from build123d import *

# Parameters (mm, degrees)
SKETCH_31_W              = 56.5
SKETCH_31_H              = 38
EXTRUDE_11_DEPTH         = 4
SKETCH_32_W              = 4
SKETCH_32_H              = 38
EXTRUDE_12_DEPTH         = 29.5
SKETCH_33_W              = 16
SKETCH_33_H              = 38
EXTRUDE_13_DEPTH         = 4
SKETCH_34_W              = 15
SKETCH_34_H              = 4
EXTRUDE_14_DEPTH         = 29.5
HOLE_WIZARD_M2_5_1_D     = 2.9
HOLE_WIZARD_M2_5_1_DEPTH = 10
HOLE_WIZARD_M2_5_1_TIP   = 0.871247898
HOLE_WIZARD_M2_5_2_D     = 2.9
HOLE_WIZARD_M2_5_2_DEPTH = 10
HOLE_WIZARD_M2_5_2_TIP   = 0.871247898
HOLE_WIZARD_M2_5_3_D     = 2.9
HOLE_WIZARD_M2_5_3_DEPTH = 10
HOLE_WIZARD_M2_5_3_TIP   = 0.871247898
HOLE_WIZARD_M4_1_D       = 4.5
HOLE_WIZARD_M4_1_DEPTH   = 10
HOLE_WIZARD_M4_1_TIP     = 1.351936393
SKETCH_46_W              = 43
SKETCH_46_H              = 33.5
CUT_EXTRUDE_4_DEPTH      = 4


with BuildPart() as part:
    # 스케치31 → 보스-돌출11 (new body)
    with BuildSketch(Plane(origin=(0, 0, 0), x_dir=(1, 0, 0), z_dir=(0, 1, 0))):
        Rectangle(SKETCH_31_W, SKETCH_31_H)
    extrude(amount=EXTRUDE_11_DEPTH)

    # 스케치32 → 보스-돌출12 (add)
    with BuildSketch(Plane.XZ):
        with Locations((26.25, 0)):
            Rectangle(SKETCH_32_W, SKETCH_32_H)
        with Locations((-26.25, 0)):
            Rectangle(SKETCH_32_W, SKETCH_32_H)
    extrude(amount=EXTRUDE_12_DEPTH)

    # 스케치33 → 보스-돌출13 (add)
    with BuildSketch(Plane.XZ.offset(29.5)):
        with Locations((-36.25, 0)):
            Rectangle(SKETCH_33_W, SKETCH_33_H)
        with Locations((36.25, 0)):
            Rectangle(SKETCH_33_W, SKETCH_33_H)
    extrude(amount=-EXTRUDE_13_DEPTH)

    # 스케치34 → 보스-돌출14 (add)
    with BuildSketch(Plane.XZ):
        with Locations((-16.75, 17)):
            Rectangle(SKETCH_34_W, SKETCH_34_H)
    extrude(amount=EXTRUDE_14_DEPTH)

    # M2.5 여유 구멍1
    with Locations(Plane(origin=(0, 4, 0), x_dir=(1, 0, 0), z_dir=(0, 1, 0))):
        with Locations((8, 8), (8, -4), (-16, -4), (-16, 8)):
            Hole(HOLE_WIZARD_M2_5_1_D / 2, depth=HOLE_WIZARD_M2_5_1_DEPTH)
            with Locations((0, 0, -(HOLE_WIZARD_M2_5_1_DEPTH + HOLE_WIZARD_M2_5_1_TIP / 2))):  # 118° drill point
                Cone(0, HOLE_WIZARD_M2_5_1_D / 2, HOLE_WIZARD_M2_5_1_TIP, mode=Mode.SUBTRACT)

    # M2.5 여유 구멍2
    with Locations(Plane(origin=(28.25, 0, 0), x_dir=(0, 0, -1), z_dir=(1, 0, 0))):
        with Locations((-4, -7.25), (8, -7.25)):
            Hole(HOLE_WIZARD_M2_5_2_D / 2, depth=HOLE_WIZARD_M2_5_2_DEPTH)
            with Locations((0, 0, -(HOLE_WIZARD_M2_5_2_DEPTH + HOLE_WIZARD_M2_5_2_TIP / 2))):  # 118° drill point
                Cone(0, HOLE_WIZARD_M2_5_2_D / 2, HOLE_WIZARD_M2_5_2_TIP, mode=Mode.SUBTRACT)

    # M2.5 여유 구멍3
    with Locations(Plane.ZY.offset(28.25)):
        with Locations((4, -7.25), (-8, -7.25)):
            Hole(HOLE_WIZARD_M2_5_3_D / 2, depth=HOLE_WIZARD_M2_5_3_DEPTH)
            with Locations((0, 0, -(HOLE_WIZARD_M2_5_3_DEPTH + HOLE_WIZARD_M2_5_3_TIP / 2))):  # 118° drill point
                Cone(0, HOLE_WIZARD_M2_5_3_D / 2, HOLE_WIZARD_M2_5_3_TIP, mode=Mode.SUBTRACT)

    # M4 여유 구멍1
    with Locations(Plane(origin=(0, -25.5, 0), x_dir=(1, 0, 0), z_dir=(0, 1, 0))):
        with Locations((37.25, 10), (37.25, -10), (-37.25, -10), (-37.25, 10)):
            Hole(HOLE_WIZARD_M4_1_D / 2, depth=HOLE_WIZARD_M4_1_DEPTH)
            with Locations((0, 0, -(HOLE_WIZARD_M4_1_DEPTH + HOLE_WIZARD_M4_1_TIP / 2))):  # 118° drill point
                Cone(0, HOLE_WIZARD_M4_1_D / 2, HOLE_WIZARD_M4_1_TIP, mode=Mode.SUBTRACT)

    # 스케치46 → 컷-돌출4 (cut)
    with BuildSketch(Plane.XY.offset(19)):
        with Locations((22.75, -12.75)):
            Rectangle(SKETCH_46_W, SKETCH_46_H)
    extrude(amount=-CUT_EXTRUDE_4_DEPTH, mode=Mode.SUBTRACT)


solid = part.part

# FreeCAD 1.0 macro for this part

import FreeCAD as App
import Part
import Sketcher

doc = App.newDocument("Part")
params = doc.addObject("Spreadsheet::Sheet", "Params")
for row, (alias, value) in enumerate([
    ("sketch1_height", "38 mm"),
    ("sketch1_width", "56.5 mm"),
    ("pad1_length", "4 mm"),
    ("sketch2_width", "4 mm"),
    ("sketch2_height", "38 mm"),
    ("pad2_length", "29.5 mm"),
    ("sketch3_width", "16 mm"),
    ("sketch3_height", "38 mm"),
    ("pad3_length", "4 mm"),
    ("sketch4_width", "15 mm"),
    ("sketch4_height", "4 mm"),
    ("pad4_length", "29.5 mm"),
    ("sketch5_diameter", "2.9 mm"),
    ("hole_diameter", "2.9 mm"),
    ("hole_depth", "10 mm"),
    ("sketch6_diameter", "2.9 mm"),
    ("hole2_diameter", "2.9 mm"),
    ("hole2_depth", "10 mm"),
    ("sketch7_diameter", "2.9 mm"),
    ("hole3_diameter", "2.9 mm"),
    ("hole3_depth", "10 mm"),
    ("sketch8_diameter", "4.5 mm"),
    ("hole4_diameter", "4.5 mm"),
    ("hole4_depth", "10 mm"),
    ("sketch9_width", "43 mm"),
    ("sketch9_height", "33.5 mm"),
    ("pocket1_length", "4 mm"),
], start=1):
    params.set(f"A{row}", alias)
    params.set(f"B{row}", "=" + value)
    params.setAlias(f"B{row}", alias)

body = doc.addObject("PartDesign::Body", "Body")

# Sketch on XZ plane
sketch1 = doc.addObject("Sketcher::SketchObject", "Sketch")
body.addObject(sketch1)
sketch1.AttachmentSupport = (doc.XZ_Plane, [""])
sketch1.MapMode = "FlatFace"
sketch1.addGeometry([
    Part.LineSegment(App.Vector(-28, -19, 0), App.Vector(-28, 19, 0)),
    Part.LineSegment(App.Vector(-28, 19, 0), App.Vector(28, 19, 0)),
    Part.LineSegment(App.Vector(28, 19, 0), App.Vector(28, -19, 0)),
    Part.LineSegment(App.Vector(28, -19, 0), App.Vector(-28, -19, 0)),
], False)
sketch1.addConstraint([
    Sketcher.Constraint("Coincident", 0, 2, 1, 1),
    Sketcher.Constraint("Coincident", 1, 2, 2, 1),
    Sketcher.Constraint("Coincident", 2, 2, 3, 1),
    Sketcher.Constraint("Coincident", 3, 2, 0, 1),
    Sketcher.Constraint("Vertical", 0),
    Sketcher.Constraint("Horizontal", 1),
    Sketcher.Constraint("Vertical", 2),
    Sketcher.Constraint("Horizontal", 3),
    Sketcher.Constraint("Symmetric", 0, 2, 2, 2, -1, 1),
    Sketcher.Constraint("DistanceY", 0, 1, 0, 2, 38.0),
    Sketcher.Constraint("DistanceX", 1, 1, 1, 2, 56.5),
])
sketch1.setExpression("Constraints[9]", "Params.sketch1_height")
sketch1.setExpression("Constraints[10]", "Params.sketch1_width")
pad1 = doc.addObject("PartDesign::Pad", "Pad")
body.addObject(pad1)
pad1.Profile = sketch1
pad1.setExpression("Length", "Params.pad1_length")
pad1.Reversed = True

# Sketch on XZ plane
sketch2 = doc.addObject("Sketcher::SketchObject", "Sketch001")
body.addObject(sketch2)
sketch2.AttachmentSupport = (doc.XZ_Plane, [""])
sketch2.MapMode = "FlatFace"
sketch2.addGeometry([
    Part.LineSegment(App.Vector(24.2, 19, 0), App.Vector(24.2, -19, 0)),  # 0
    Part.LineSegment(App.Vector(24.2, -19, 0), App.Vector(28.2, -19, 0)),  # 1
    Part.LineSegment(App.Vector(28.2, -19, 0), App.Vector(28.2, 19, 0)),  # 2
    Part.LineSegment(App.Vector(28.2, 19, 0), App.Vector(24.2, 19, 0)),  # 3
    Part.LineSegment(App.Vector(-28.2, 19, 0), App.Vector(-28.2, -19, 0)),  # 4
    Part.LineSegment(App.Vector(-28.2, -19, 0), App.Vector(-24.2, -19, 0)),  # 5
    Part.LineSegment(App.Vector(-24.2, -19, 0), App.Vector(-24.2, 19, 0)),  # 6
    Part.LineSegment(App.Vector(-24.2, 19, 0), App.Vector(-28.2, 19, 0)),  # 7
], False)
sketch2.addConstraint([
    Sketcher.Constraint("Coincident", 0, 2, 1, 1),
    Sketcher.Constraint("Coincident", 1, 2, 2, 1),
    Sketcher.Constraint("Coincident", 2, 2, 3, 1),
    Sketcher.Constraint("Coincident", 3, 2, 0, 1),
    Sketcher.Constraint("Coincident", 4, 2, 5, 1),
    Sketcher.Constraint("Coincident", 5, 2, 6, 1),
    Sketcher.Constraint("Coincident", 6, 2, 7, 1),
    Sketcher.Constraint("Coincident", 7, 2, 4, 1),
    Sketcher.Constraint("Vertical", 0),
    Sketcher.Constraint("Horizontal", 1),
    Sketcher.Constraint("Vertical", 2),
    Sketcher.Constraint("Horizontal", 3),
    Sketcher.Constraint("Vertical", 4),
    Sketcher.Constraint("Horizontal", 5),
    Sketcher.Constraint("Vertical", 6),
    Sketcher.Constraint("Horizontal", 7),
    Sketcher.Constraint("Symmetric", 2, 2, 4, 2, -1, 1),
    Sketcher.Constraint("Symmetric", 0, 2, 6, 2, -1, 1),
    Sketcher.Constraint("Horizontal", 1, 2, 4, 2),
    Sketcher.Constraint("DistanceX", 1, 1, 1, 2, 4.0),
    Sketcher.Constraint("DistanceY", 0, 2, 0, 1, 38.0),
    Sketcher.Constraint("DistanceX", 4, 2, 0, 2, 52.5),
])
sketch2.setExpression("Constraints[19]", "Params.sketch2_width")
sketch2.setExpression("Constraints[20]", "Params.sketch2_height")
pad2 = doc.addObject("PartDesign::Pad", "Pad001")
body.addObject(pad2)
pad2.Profile = sketch2
pad2.setExpression("Length", "Params.pad2_length")

# Sketch on XZ plane
sketch3 = doc.addObject("Sketcher::SketchObject", "Sketch002")
body.addObject(sketch3)
sketch3.AttachmentSupport = (doc.XZ_Plane, [""])
sketch3.MapMode = "FlatFace"
sketch3.AttachmentOffset = App.Placement(App.Vector(0, 0, 29.5), App.Rotation())
sketch3.addGeometry([
    Part.LineSegment(App.Vector(-44, 19, 0), App.Vector(-44, -19, 0)),  # 0
    Part.LineSegment(App.Vector(-44, -19, 0), App.Vector(-28, -19, 0)),  # 1
    Part.LineSegment(App.Vector(-28, -19, 0), App.Vector(-28, 19, 0)),  # 2
    Part.LineSegment(App.Vector(-28, 19, 0), App.Vector(-44, 19, 0)),  # 3
    Part.LineSegment(App.Vector(28, 19, 0), App.Vector(28, -19, 0)),  # 4
    Part.LineSegment(App.Vector(28, -19, 0), App.Vector(44, -19, 0)),  # 5
    Part.LineSegment(App.Vector(44, -19, 0), App.Vector(44, 19, 0)),  # 6
    Part.LineSegment(App.Vector(44, 19, 0), App.Vector(28, 19, 0)),  # 7
], False)
sketch3.addConstraint([
    Sketcher.Constraint("Coincident", 0, 2, 1, 1),
    Sketcher.Constraint("Coincident", 1, 2, 2, 1),
    Sketcher.Constraint("Coincident", 2, 2, 3, 1),
    Sketcher.Constraint("Coincident", 3, 2, 0, 1),
    Sketcher.Constraint("Coincident", 4, 2, 5, 1),
    Sketcher.Constraint("Coincident", 5, 2, 6, 1),
    Sketcher.Constraint("Coincident", 6, 2, 7, 1),
    Sketcher.Constraint("Coincident", 7, 2, 4, 1),
    Sketcher.Constraint("Vertical", 0),
    Sketcher.Constraint("Horizontal", 1),
    Sketcher.Constraint("Vertical", 2),
    Sketcher.Constraint("Horizontal", 3),
    Sketcher.Constraint("Vertical", 4),
    Sketcher.Constraint("Horizontal", 5),
    Sketcher.Constraint("Vertical", 6),
    Sketcher.Constraint("Horizontal", 7),
    Sketcher.Constraint("Symmetric", 2, 2, 4, 2, -1, 1),
    Sketcher.Constraint("Symmetric", 0, 2, 6, 2, -1, 1),
    Sketcher.Constraint("Horizontal", 1, 2, 4, 2),
    Sketcher.Constraint("DistanceX", 1, 1, 1, 2, 16.0),
    Sketcher.Constraint("DistanceY", 0, 2, 0, 1, 38.0),
    Sketcher.Constraint("DistanceX", 1, 2, 4, 2, 56.5),
])
sketch3.setExpression("Constraints[19]", "Params.sketch3_width")
sketch3.setExpression("Constraints[20]", "Params.sketch3_height")
pad3 = doc.addObject("PartDesign::Pad", "Pad002")
body.addObject(pad3)
pad3.Profile = sketch3
pad3.setExpression("Length", "Params.pad3_length")
pad3.Reversed = True

# Sketch on XZ plane
sketch4 = doc.addObject("Sketcher::SketchObject", "Sketch003")
body.addObject(sketch4)
sketch4.AttachmentSupport = (doc.XZ_Plane, [""])
sketch4.MapMode = "FlatFace"
sketch4.addGeometry([
    Part.LineSegment(App.Vector(-24.2, 19, 0), App.Vector(-24.2, 15, 0)),
    Part.LineSegment(App.Vector(-24.2, 15, 0), App.Vector(-9.2, 15, 0)),
    Part.LineSegment(App.Vector(-9.2, 15, 0), App.Vector(-9.2, 19, 0)),
    Part.LineSegment(App.Vector(-9.2, 19, 0), App.Vector(-24.2, 19, 0)),
], False)
sketch4.addConstraint([
    Sketcher.Constraint("Coincident", 0, 2, 1, 1),
    Sketcher.Constraint("Coincident", 1, 2, 2, 1),
    Sketcher.Constraint("Coincident", 2, 2, 3, 1),
    Sketcher.Constraint("Coincident", 3, 2, 0, 1),
    Sketcher.Constraint("Vertical", 0),
    Sketcher.Constraint("Horizontal", 1),
    Sketcher.Constraint("Vertical", 2),
    Sketcher.Constraint("Horizontal", 3),
    Sketcher.Constraint("DistanceX", 1, 1, 1, 2, 15.0),
    Sketcher.Constraint("DistanceY", 0, 2, 0, 1, 4.0),
    Sketcher.Constraint("DistanceY", -1, 1, 0, 2, 15.0),
    Sketcher.Constraint("DistanceX", 0, 2, -1, 1, 24.25),
])
sketch4.setExpression("Constraints[8]", "Params.sketch4_width")
sketch4.setExpression("Constraints[9]", "Params.sketch4_height")
pad4 = doc.addObject("PartDesign::Pad", "Pad003")
body.addObject(pad4)
pad4.Profile = sketch4
pad4.setExpression("Length", "Params.pad4_length")

# Sketch on XZ plane
sketch5 = doc.addObject("Sketcher::SketchObject", "Sketch004")
body.addObject(sketch5)
sketch5.AttachmentSupport = (doc.XZ_Plane, [""])
sketch5.MapMode = "FlatFace"
sketch5.AttachmentOffset = App.Placement(App.Vector(0, 0, -4), App.Rotation())
sketch5.addGeometry([
    Part.Circle(App.Vector(8, -8, 0), App.Vector(0, 0, 1), 1.4),
    Part.Circle(App.Vector(8, 4, 0), App.Vector(0, 0, 1), 1.4),
    Part.Circle(App.Vector(-16, 4, 0), App.Vector(0, 0, 1), 1.4),
    Part.Circle(App.Vector(-16, -8, 0), App.Vector(0, 0, 1), 1.4),
], False)
sketch5.addConstraint([
    Sketcher.Constraint("Equal", 0, 1),
    Sketcher.Constraint("Equal", 1, 2),
    Sketcher.Constraint("Equal", 2, 3),
    Sketcher.Constraint("Horizontal", 1, 3, 2, 3),
    Sketcher.Constraint("Horizontal", 0, 3, 3, 3),
    Sketcher.Constraint("Vertical", 0, 3, 1, 3),
    Sketcher.Constraint("Vertical", 2, 3, 3, 3),
    Sketcher.Constraint("Diameter", 0, 2.9),
    Sketcher.Constraint("DistanceX", -1, 1, 0, 3, 8.0),
    Sketcher.Constraint("DistanceY", 0, 3, -1, 1, 8.0),
    Sketcher.Constraint("DistanceY", -1, 1, 1, 3, 4.0),
    Sketcher.Constraint("DistanceX", 2, 3, -1, 1, 16.0),
])
sketch5.setExpression("Constraints[7]", "Params.sketch5_diameter")
doc.recompute()
hole = doc.addObject("PartDesign::Hole", "Hole")
body.addObject(hole)
hole.Profile = sketch5
hole.ThreadType = "None"
hole.setExpression("Diameter", "Params.hole_diameter")
hole.DepthType = "Dimension"
hole.setExpression("Depth", "Params.hole_depth")
hole.DrillPoint = "Angled"
hole.DrillPointAngle = 118
hole.Reversed = True

# Sketch on YZ plane
sketch6 = doc.addObject("Sketcher::SketchObject", "Sketch005")
body.addObject(sketch6)
sketch6.AttachmentSupport = (doc.YZ_Plane, [""])
sketch6.MapMode = "FlatFace"
sketch6.AttachmentOffset = App.Placement(App.Vector(0, 0, 28.25), App.Rotation())
sketch6.addGeometry([
    Part.Circle(App.Vector(-7.2, 4, 0), App.Vector(0, 0, 1), 1.4),
    Part.Circle(App.Vector(-7.2, -8, 0), App.Vector(0, 0, 1), 1.4),
], False)
sketch6.addConstraint([
    Sketcher.Constraint("Equal", 0, 1),
    Sketcher.Constraint("Vertical", 0, 3, 1, 3),
    Sketcher.Constraint("Diameter", 0, 2.9),
    Sketcher.Constraint("DistanceY", -1, 1, 0, 3, 4.0),
    Sketcher.Constraint("DistanceY", 1, 3, -1, 1, 8.0),
    Sketcher.Constraint("DistanceX", 0, 3, -1, 1, 7.25),
])
sketch6.setExpression("Constraints[2]", "Params.sketch6_diameter")
doc.recompute()
hole2 = doc.addObject("PartDesign::Hole", "Hole001")
body.addObject(hole2)
hole2.Profile = sketch6
hole2.ThreadType = "None"
hole2.setExpression("Diameter", "Params.hole2_diameter")
hole2.DepthType = "Dimension"
hole2.setExpression("Depth", "Params.hole2_depth")
hole2.DrillPoint = "Angled"
hole2.DrillPointAngle = 118

# Sketch on YZ plane
sketch7 = doc.addObject("Sketcher::SketchObject", "Sketch006")
body.addObject(sketch7)
sketch7.AttachmentSupport = (doc.YZ_Plane, [""])
sketch7.MapMode = "FlatFace"
sketch7.AttachmentOffset = App.Placement(App.Vector(0, 0, -28.25), App.Rotation())
sketch7.addGeometry([
    Part.Circle(App.Vector(-7.2, 4, 0), App.Vector(0, 0, 1), 1.4),
    Part.Circle(App.Vector(-7.2, -8, 0), App.Vector(0, 0, 1), 1.4),
], False)
sketch7.addConstraint([
    Sketcher.Constraint("Equal", 0, 1),
    Sketcher.Constraint("Vertical", 0, 3, 1, 3),
    Sketcher.Constraint("Diameter", 0, 2.9),
    Sketcher.Constraint("DistanceY", -1, 1, 0, 3, 4.0),
    Sketcher.Constraint("DistanceY", 1, 3, -1, 1, 8.0),
    Sketcher.Constraint("DistanceX", 0, 3, -1, 1, 7.25),
])
sketch7.setExpression("Constraints[2]", "Params.sketch7_diameter")
doc.recompute()
hole3 = doc.addObject("PartDesign::Hole", "Hole002")
body.addObject(hole3)
hole3.Profile = sketch7
hole3.ThreadType = "None"
hole3.setExpression("Diameter", "Params.hole3_diameter")
hole3.DepthType = "Dimension"
hole3.setExpression("Depth", "Params.hole3_depth")
hole3.DrillPoint = "Angled"
hole3.DrillPointAngle = 118
hole3.Reversed = True

# Sketch on XZ plane
sketch8 = doc.addObject("Sketcher::SketchObject", "Sketch007")
body.addObject(sketch8)
sketch8.AttachmentSupport = (doc.XZ_Plane, [""])
sketch8.MapMode = "FlatFace"
sketch8.AttachmentOffset = App.Placement(App.Vector(0, 0, 25.5), App.Rotation())
sketch8.addGeometry([
    Part.Circle(App.Vector(37.2, -10, 0), App.Vector(0, 0, 1), 2.2),
    Part.Circle(App.Vector(37.2, 10, 0), App.Vector(0, 0, 1), 2.2),
    Part.Circle(App.Vector(-37.2, 10, 0), App.Vector(0, 0, 1), 2.2),
    Part.Circle(App.Vector(-37.2, -10, 0), App.Vector(0, 0, 1), 2.2),
], False)
sketch8.addConstraint([
    Sketcher.Constraint("Equal", 0, 1),
    Sketcher.Constraint("Equal", 1, 2),
    Sketcher.Constraint("Equal", 2, 3),
    Sketcher.Constraint("Symmetric", 0, 3, 2, 3, -1, 1),
    Sketcher.Constraint("Symmetric", 1, 3, 3, 3, -1, 1),
    Sketcher.Constraint("Symmetric", 1, 3, 2, 3, -2),
    Sketcher.Constraint("Diameter", 0, 4.5),
    Sketcher.Constraint("DistanceY", 0, 3, -1, 1, 10.0),
    Sketcher.Constraint("DistanceX", 2, 3, 1, 3, 74.5),
])
sketch8.setExpression("Constraints[6]", "Params.sketch8_diameter")
doc.recompute()
hole4 = doc.addObject("PartDesign::Hole", "Hole003")
body.addObject(hole4)
hole4.Profile = sketch8
hole4.ThreadType = "None"
hole4.setExpression("Diameter", "Params.hole4_diameter")
hole4.DepthType = "Dimension"
hole4.setExpression("Depth", "Params.hole4_depth")
hole4.DrillPoint = "Angled"
hole4.DrillPointAngle = 118
hole4.Reversed = True

# Sketch on XY plane
sketch9 = doc.addObject("Sketcher::SketchObject", "Sketch008")
body.addObject(sketch9)
sketch9.AttachmentSupport = (doc.XY_Plane, [""])
sketch9.MapMode = "FlatFace"
sketch9.AttachmentOffset = App.Placement(App.Vector(0, 0, 19), App.Rotation())
sketch9.addGeometry([
    Part.LineSegment(App.Vector(1, 4, 0), App.Vector(1, -30, 0)),
    Part.LineSegment(App.Vector(1, -30, 0), App.Vector(44, -30, 0)),
    Part.LineSegment(App.Vector(44, -30, 0), App.Vector(44, 4, 0)),
    Part.LineSegment(App.Vector(44, 4, 0), App.Vector(1, 4, 0)),
], False)
sketch9.addConstraint([
    Sketcher.Constraint("Coincident", 0, 2, 1, 1),
    Sketcher.Constraint("Coincident", 1, 2, 2, 1),
    Sketcher.Constraint("Coincident", 2, 2, 3, 1),
    Sketcher.Constraint("Coincident", 3, 2, 0, 1),
    Sketcher.Constraint("Vertical", 0),
    Sketcher.Constraint("Horizontal", 1),
    Sketcher.Constraint("Vertical", 2),
    Sketcher.Constraint("Horizontal", 3),
    Sketcher.Constraint("DistanceX", 1, 1, 1, 2, 43.0),
    Sketcher.Constraint("DistanceY", 0, 2, 0, 1, 33.5),
    Sketcher.Constraint("DistanceY", -1, 1, 2, 2, 4.0),
    Sketcher.Constraint("DistanceX", -1, 1, 0, 2, 1.25),
])
sketch9.setExpression("Constraints[8]", "Params.sketch9_width")
sketch9.setExpression("Constraints[9]", "Params.sketch9_height")
pocket1 = doc.addObject("PartDesign::Pocket", "Pocket")
body.addObject(pocket1)
pocket1.Profile = sketch9
pocket1.setExpression("Length", "Params.pocket1_length")

doc.recompute()
